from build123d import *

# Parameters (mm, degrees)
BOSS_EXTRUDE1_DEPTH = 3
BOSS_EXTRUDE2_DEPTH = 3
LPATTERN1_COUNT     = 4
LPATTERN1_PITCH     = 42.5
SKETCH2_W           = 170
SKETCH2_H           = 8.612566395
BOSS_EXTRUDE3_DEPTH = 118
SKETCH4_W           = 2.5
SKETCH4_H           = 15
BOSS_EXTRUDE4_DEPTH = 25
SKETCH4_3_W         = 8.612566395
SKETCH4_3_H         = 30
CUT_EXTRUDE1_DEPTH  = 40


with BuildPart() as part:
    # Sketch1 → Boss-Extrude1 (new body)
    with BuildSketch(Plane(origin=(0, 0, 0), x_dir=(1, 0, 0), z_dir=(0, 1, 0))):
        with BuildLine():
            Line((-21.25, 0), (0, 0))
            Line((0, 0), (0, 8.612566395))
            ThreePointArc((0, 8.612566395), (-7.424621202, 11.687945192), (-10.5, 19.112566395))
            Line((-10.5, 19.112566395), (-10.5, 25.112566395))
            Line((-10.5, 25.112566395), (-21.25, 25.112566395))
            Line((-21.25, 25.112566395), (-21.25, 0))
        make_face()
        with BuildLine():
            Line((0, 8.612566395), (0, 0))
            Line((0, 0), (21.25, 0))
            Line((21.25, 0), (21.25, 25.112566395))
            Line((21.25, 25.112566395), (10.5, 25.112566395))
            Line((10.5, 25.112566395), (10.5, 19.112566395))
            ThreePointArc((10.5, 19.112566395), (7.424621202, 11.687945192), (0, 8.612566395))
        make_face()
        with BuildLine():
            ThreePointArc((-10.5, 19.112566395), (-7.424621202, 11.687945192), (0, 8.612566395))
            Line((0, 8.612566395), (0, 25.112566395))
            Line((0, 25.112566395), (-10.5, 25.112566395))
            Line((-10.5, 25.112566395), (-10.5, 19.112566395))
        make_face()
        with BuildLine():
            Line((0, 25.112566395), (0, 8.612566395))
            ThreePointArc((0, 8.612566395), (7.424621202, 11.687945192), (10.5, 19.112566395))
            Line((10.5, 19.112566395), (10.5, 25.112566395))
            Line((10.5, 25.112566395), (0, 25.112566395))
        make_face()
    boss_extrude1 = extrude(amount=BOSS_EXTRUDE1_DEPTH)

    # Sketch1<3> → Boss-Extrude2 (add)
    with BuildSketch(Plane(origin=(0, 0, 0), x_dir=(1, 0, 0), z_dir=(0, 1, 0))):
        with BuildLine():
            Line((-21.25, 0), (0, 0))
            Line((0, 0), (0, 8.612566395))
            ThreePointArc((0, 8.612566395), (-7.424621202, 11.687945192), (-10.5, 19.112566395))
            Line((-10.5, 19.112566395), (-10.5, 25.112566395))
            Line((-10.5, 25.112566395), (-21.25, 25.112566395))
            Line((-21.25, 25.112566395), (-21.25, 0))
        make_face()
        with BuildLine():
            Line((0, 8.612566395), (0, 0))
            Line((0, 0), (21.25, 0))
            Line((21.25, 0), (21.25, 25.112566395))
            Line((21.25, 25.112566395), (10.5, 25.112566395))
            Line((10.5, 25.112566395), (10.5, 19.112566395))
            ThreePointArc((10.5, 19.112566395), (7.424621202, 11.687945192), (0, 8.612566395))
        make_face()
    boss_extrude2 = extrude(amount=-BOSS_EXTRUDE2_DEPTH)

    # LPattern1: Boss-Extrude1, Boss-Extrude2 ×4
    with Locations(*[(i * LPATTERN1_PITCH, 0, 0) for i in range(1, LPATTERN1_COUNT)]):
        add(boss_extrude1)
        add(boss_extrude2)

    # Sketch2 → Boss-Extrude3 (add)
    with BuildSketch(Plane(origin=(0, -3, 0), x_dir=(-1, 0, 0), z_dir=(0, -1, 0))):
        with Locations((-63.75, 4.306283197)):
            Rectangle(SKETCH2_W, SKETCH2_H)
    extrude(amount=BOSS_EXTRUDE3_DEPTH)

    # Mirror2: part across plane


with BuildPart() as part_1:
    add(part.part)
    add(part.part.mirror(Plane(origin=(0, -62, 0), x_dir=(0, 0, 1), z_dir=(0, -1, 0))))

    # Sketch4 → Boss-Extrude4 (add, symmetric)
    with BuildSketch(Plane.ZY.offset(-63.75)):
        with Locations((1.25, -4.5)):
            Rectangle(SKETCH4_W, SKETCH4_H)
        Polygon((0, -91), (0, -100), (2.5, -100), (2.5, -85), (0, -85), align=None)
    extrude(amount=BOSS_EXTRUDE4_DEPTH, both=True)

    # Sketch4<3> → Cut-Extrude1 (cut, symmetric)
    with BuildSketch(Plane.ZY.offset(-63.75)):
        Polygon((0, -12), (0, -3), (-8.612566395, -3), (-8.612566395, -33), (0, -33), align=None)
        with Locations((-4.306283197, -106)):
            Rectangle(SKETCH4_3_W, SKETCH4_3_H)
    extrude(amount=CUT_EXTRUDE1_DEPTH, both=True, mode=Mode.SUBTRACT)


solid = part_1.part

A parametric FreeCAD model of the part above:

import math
import FreeCAD as App
import Part
import Sketcher
from FreeCAD import Vector
Q = App.Units.Quantity


def add_polygon(sketch, points):
    """Adds a closed chain of lines whose ends are joined by coincident constraints."""
    first, n = sketch.GeometryCount, len(points)
    for a, b in zip(points, points[1:] + points[:1]):
        sketch.addGeometry(Part.LineSegment(App.Vector(*a, 0), App.Vector(*b, 0)), False)
    for i in range(n):
        sketch.addConstraint(Sketcher.Constraint("Coincident", first + i, 2, first + (i + 1) % n, 1))

doc = App.newDocument("Part")
body = doc.addObject("PartDesign::Body", "Body")

# Sketch on XZ plane
sketch1 = body.newObject("Sketcher::SketchObject", "Sketch")
sketch1.AttachmentSupport = (doc.getObject("XZ_Plane"), [""])
sketch1.MapMode = "FlatFace"
add_polygon(sketch1, [(-21, 0), (21, 0), (21, -25), (-21, -25)])  # lines 0-3
sketch1.addConstraint([
    Sketcher.Constraint("Horizontal", 0),
    Sketcher.Constraint("Vertical", 1),
    Sketcher.Constraint("Horizontal", 2),
    Sketcher.Constraint("Vertical", 3),
    Sketcher.Constraint("Symmetric", 0, 2, 3, 2, -1, 1),
    Sketcher.Constraint("DistanceX", 0, 1, 0, 2, Q("42.5 mm")),
    Sketcher.Constraint("DistanceY", 1, 2, 1, 1, Q("25.112566 mm")),
])
pad1 = body.newObject("PartDesign::Pad", "Pad")
pad1.Profile = sketch1
pad1.Length = 3
pad1.Reversed = True

# Sketch on XZ plane
sketch2 = body.newObject("Sketcher::SketchObject", "Sketch001")
sketch2.AttachmentSupport = (doc.getObject("XZ_Plane"), [""])
sketch2.MapMode = "FlatFace"
sketch2.addGeometry([
    Part.LineSegment(Vector(-21, 0, 0), Vector(21, 0, 0)),  # 0
    Part.LineSegment(Vector(21, 0, 0), Vector(21, -25, 0)),  # 1
    Part.LineSegment(Vector(21, -25, 0), Vector(10, -25, 0)),  # 2
    Part.LineSegment(Vector(10, -25, 0), Vector(10, -19, 0)),  # 3
    Part.ArcOfCircle(Part.Circle(Vector(0, -19, 0), Vector(0, 0, 1), 10), math.radians(0), math.radians(90)),  # 4
    Part.ArcOfCircle(Part.Circle(Vector(0, -19, 0), Vector(0, 0, 1), 10), math.radians(90), math.radians(180)),  # 5
    Part.LineSegment(Vector(-10, -19, 0), Vector(-10, -25, 0)),  # 6
    Part.LineSegment(Vector(-10, -25, 0), Vector(-21, -25, 0)),  # 7
    Part.LineSegment(Vector(-21, -25, 0), Vector(-21, 0, 0)),  # 8
], False)
sketch2.addConstraint([
    Sketcher.Constraint("Coincident", 0, 2, 1, 1),
    Sketcher.Constraint("Coincident", 1, 2, 2, 1),
    Sketcher.Constraint("Coincident", 2, 2, 3, 1),
    Sketcher.Constraint("Tangent", 3, 2, 4, 1),
    Sketcher.Constraint("Tangent", 4, 2, 5, 1),
    Sketcher.Constraint("Tangent", 5, 2, 6, 1),
    Sketcher.Constraint("Coincident", 6, 2, 7, 1),
    Sketcher.Constraint("Coincident", 7, 2, 8, 1),
    Sketcher.Constraint("Coincident", 8, 2, 0, 1),
    Sketcher.Constraint("Horizontal", 0),
    Sketcher.Constraint("Vertical", 1),
    Sketcher.Constraint("Horizontal", 2),
    Sketcher.Constraint("Vertical", 3),
    Sketcher.Constraint("Vertical", 6),
    Sketcher.Constraint("Horizontal", 7),
    Sketcher.Constraint("Vertical", 8),
    Sketcher.Constraint("Equal", 4, 5),
    Sketcher.Constraint("Symmetric", 0, 2, 8, 2, -1, 1),
    Sketcher.Constraint("Symmetric", 2, 2, 6, 2, -2),
    Sketcher.Constraint("PointOnObject", 4, 2, -2),
    Sketcher.Constraint("Radius", 4, Q("10.5 mm")),
    Sketcher.Constraint("DistanceY", 3, 1, 3, 2, Q("6 mm")),
    Sketcher.Constraint("DistanceX", 0, 1, 0, 2, Q("42.5 mm")),
    Sketcher.Constraint("DistanceY", 1, 2, 1, 1, Q("25.112566 mm")),
])
pad2 = body.newObject("PartDesign::Pad", "Pad001")
pad2.Profile = sketch2
pad2.Length = 3
doc.recompute()

linearpattern = body.newObject("PartDesign::LinearPattern", "LinearPattern")
linearpattern.Originals = [pad1, pad2]
linearpattern.Direction = (doc.getObject("X_Axis"), [""])
linearpattern.Mode = "offset"
linearpattern.Offset = 42.5
linearpattern.Occurrences = 4
body.Tip = linearpattern

# Sketch on XZ plane
sketch3 = body.newObject("Sketcher::SketchObject", "Sketch002")
sketch3.AttachmentSupport = (doc.getObject("XZ_Plane"), [""])
sketch3.MapMode = "FlatFace"
sketch3.AttachmentOffset = App.Placement(Vector(0, 0, 3), App.Rotation())
add_polygon(sketch3, [(149, -9), (149, 0), (-21, 0), (-21, -9)])  # lines 0-3
sketch3.addConstraint([
    Sketcher.Constraint("Vertical", 0),
    Sketcher.Constraint("Horizontal", 1),
    Sketcher.Constraint("Vertical", 2),
    Sketcher.Constraint("Horizontal", 3),
    Sketcher.Constraint("PointOnObject", 0, 2, -1),
    Sketcher.Constraint("DistanceX", 1, 2, 1, 1, Q("170 mm")),
    Sketcher.Constraint("DistanceX", -1, 1, 0, 2, Q("148.75 mm")),
    Sketcher.Constraint("DistanceY", 0, 1, 0, 2, Q("8.612566 mm")),
])
pad3 = body.newObject("PartDesign::Pad", "Pad002")
pad3.Profile = sketch3
pad3.Length = 118
body2 = doc.addObject("PartDesign::Body", "Body001")
doc.recompute()

body2.BaseFeature = body
doc.recompute()

mirroring = doc.addObject("Part::Mirroring", "Mirroring")
mirroring.Source = body
mirroring.Base = Vector(0, -62, 0)
mirroring.Normal = Vector(0, -1, 0)
body3 = doc.addObject("PartDesign::Body", "Body002")
body3.BaseFeature = mirroring
boolean = body2.newObject("PartDesign::Boolean", "Boolean")
boolean.Type = "Fuse"
boolean.addObjects([body3])
doc.recompute()

# Sketch on YZ plane
sketch4 = body2.newObject("Sketcher::SketchObject", "Sketch003")
sketch4.AttachmentSupport = (doc.getObject("YZ_Plane001"), [""])
sketch4.MapMode = "FlatFace"
sketch4.AttachmentOffset = App.Placement(Vector(0, 0, 63.75), App.Rotation())
add_polygon(sketch4, [(3, 0), (-12, 0), (-12, 2.5), (3, 2.5)])  # lines 0-3
add_polygon(sketch4, [(-100, 0), (-100, 2.5), (-85, 2.5), (-85, 0)])  # lines 4-7
sketch4.addConstraint([
    Sketcher.Constraint("Horizontal", 0),
    Sketcher.Constraint("Vertical", 1),
    Sketcher.Constraint("Horizontal", 2),
    Sketcher.Constraint("Vertical", 3),
    Sketcher.Constraint("Vertical", 4),
    Sketcher.Constraint("Horizontal", 5),
    Sketcher.Constraint("Vertical", 6),
    Sketcher.Constraint("Horizontal", 7),
    Sketcher.Constraint("PointOnObject", 0, 2, -1),
    Sketcher.Constraint("PointOnObject", 6, 2, -1),
    Sketcher.Constraint("Horizontal", 2, 2, 4, 2),
    Sketcher.Constraint("Equal", 2, 5),
    Sketcher.Constraint("DistanceX", 0, 2, 0, 1, Q("15 mm")),
    Sketcher.Constraint("DistanceY", 1, 1, 1, 2, Q("2.5 mm")),
    Sketcher.Constraint("DistanceX", 0, 2, -1, 1, Q("12 mm")),
    Sketcher.Constraint("DistanceX", 4, 2, -1, 1, Q("100 mm")),
])
pad4 = body2.newObject("PartDesign::Pad", "Pad003")
pad4.Profile = sketch4
pad4.Length = 50
pad4.Midplane = True

# Sketch on YZ plane
sketch5 = body2.newObject("Sketcher::SketchObject", "Sketch004")
sketch5.AttachmentSupport = (doc.getObject("YZ_Plane001"), [""])
sketch5.MapMode = "FlatFace"
sketch5.AttachmentOffset = App.Placement(Vector(0, 0, 63.75), App.Rotation())
add_polygon(sketch5, [(-3, 0), (-3, -9), (-33, -9), (-33, 0)])  # lines 0-3
add_polygon(sketch5, [(-91, -9), (-121, -9), (-121, 0), (-91, 0)])  # lines 4-7
sketch5.addConstraint([
    Sketcher.Constraint("Vertical", 0),
    Sketcher.Constraint("Horizontal", 1),
    Sketcher.Constraint("Vertical", 2),
    Sketcher.Constraint("Horizontal", 3),
    Sketcher.Constraint("Horizontal", 4),
    Sketcher.Constraint("Vertical", 5),
    Sketcher.Constraint("Horizontal", 6),
    Sketcher.Constraint("Vertical", 7),
    Sketcher.Constraint("PointOnObject", 2, 2, -1),
    Sketcher.Constraint("PointOnObject", 5, 2, -1),
    Sketcher.Constraint("Horizontal", 1, 2, 4, 2),
    Sketcher.Constraint("Equal", 3, 4),
    Sketcher.Constraint("DistanceX", 1, 2, 1, 1, Q("30 mm")),
    Sketcher.Constraint("DistanceX", 0, 2, -1, 1, Q("3 mm")),
    Sketcher.Constraint("DistanceX", 4, 2, -1, 1, Q("121 mm")),
    Sketcher.Constraint("DistanceY", 0, 2, 0, 1, Q("8.612566 mm")),
])
pocket1 = body2.newObject("PartDesign::Pocket", "Pocket")
pocket1.Profile = sketch5
pocket1.Length = 80
pocket1.Midplane = True
mirroring.Visibility = False

doc.recompute()
